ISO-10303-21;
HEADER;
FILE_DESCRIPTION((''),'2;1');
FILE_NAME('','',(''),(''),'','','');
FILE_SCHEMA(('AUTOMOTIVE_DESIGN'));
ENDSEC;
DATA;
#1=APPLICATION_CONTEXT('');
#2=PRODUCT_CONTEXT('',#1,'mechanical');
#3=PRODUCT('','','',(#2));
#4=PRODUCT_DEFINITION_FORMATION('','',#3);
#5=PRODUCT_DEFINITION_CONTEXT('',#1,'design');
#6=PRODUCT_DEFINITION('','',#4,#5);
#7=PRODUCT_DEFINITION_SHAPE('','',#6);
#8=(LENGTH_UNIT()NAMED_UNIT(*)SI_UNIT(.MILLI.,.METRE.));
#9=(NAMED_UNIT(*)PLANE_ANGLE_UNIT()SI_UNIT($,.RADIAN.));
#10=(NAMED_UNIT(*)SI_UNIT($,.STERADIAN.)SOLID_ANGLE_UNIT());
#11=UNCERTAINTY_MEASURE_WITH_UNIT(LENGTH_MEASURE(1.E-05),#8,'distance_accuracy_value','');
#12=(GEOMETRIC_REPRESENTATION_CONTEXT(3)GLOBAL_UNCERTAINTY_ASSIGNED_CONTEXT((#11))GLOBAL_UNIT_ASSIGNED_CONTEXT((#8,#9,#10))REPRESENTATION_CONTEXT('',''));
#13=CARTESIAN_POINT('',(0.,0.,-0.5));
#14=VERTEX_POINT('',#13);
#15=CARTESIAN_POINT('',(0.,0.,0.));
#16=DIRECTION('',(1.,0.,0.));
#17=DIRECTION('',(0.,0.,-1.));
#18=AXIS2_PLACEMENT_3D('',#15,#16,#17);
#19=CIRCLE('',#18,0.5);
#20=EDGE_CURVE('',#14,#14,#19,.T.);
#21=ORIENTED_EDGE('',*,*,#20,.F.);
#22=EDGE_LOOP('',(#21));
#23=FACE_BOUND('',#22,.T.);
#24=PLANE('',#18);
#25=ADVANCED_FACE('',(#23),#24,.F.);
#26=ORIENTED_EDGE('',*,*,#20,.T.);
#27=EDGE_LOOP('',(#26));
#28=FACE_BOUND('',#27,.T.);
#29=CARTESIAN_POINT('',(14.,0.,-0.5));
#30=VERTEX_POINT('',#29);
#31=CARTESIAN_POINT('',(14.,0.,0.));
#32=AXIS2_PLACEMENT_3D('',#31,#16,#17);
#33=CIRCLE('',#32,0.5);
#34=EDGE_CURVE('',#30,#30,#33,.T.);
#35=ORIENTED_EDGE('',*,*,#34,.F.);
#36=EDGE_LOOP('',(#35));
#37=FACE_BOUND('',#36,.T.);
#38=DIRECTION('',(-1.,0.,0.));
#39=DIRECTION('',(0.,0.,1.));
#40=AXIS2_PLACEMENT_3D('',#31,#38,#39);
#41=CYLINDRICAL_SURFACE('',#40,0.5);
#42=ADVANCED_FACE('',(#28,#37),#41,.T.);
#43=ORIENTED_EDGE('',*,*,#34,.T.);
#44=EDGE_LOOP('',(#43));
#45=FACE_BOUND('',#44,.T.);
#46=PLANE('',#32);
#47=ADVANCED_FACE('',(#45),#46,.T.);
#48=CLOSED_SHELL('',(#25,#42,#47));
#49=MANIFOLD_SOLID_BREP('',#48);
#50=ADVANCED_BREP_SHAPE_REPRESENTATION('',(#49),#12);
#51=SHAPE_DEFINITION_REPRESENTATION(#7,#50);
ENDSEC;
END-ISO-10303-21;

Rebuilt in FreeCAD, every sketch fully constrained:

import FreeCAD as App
import Part
import Sketcher
Q = App.Units.Quantity

doc = App.newDocument("Part")
body = doc.addObject("PartDesign::Body", "Body")

# Sketch on YZ plane
sketch1 = body.newObject("Sketcher::SketchObject", "Sketch")
sketch1.AttachmentSupport = (doc.getObject("YZ_Plane"), [""])
sketch1.MapMode = "FlatFace"
sketch1.addGeometry(Part.Circle(App.Vector(0, 0, 0), App.Vector(0, 0, 1), 0.5), False)
sketch1.addConstraint([
    Sketcher.Constraint("Coincident", 0, 3, -1, 1),
    Sketcher.Constraint("Diameter", 0, Q("1 mm")),
])
pad1 = body.newObject("PartDesign::Pad", "Pad")
pad1.Profile = sketch1
pad1.Length = 14

doc.recompute()
